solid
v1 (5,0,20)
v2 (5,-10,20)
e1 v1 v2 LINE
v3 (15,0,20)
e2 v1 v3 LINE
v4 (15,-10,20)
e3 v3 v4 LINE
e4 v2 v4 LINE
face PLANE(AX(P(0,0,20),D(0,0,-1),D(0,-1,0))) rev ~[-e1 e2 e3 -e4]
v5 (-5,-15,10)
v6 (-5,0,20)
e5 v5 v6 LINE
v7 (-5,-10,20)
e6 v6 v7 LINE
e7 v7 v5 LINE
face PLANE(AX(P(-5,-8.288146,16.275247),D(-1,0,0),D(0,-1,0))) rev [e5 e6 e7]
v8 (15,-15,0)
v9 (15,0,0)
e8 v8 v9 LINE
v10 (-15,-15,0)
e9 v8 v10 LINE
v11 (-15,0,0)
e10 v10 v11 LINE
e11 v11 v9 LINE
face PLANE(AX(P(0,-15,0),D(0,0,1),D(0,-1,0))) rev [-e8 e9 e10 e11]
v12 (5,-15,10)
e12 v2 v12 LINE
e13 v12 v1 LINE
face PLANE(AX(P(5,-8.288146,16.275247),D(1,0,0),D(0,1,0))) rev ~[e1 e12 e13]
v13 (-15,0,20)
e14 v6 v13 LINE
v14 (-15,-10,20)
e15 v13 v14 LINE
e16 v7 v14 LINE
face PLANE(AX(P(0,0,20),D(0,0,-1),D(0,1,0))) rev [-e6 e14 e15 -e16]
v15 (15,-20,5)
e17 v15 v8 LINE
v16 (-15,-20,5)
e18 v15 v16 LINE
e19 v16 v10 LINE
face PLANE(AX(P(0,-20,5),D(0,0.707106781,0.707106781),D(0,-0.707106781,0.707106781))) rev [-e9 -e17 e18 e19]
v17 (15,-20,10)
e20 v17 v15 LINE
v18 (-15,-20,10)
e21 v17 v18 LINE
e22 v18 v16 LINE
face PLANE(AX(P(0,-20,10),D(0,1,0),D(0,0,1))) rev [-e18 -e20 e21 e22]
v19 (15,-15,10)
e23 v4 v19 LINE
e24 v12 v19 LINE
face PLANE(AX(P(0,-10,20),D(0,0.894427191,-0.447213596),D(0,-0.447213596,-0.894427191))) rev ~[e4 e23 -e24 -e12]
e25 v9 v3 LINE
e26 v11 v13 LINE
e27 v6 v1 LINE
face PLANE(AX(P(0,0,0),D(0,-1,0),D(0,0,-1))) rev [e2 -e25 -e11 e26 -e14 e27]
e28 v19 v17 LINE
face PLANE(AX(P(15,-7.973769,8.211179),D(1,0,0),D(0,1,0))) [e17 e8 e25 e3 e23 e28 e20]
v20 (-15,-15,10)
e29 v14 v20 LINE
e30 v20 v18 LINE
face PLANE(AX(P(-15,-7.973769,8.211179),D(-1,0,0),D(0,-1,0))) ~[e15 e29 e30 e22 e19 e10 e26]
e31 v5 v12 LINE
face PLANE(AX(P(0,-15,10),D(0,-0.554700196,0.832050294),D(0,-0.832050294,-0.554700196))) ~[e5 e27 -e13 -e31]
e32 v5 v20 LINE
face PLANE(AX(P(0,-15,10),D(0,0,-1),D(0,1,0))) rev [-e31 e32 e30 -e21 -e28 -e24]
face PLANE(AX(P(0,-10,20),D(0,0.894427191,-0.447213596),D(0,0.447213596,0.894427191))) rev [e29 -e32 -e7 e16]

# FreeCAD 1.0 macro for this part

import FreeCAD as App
import Part
import Sketcher
from FreeCAD import Vector
Q = App.Units.Quantity


def add_polygon(sketch, points):
    """Adds a closed chain of lines whose ends are joined by coincident constraints."""
    first, n = sketch.GeometryCount, len(points)
    for a, b in zip(points, points[1:] + points[:1]):
        sketch.addGeometry(Part.LineSegment(App.Vector(*a, 0), App.Vector(*b, 0)), False)
    for i in range(n):
        sketch.addConstraint(Sketcher.Constraint("Coincident", first + i, 2, first + (i + 1) % n, 1))

doc = App.newDocument("Part")
body = doc.addObject("PartDesign::Body", "Body")

# Sketch on YZ plane
sketch1 = doc.addObject("Sketcher::SketchObject", "Sketch")
body.addObject(sketch1)
sketch1.AttachmentSupport = (doc.YZ_Plane, [""])
sketch1.MapMode = "FlatFace"
add_polygon(sketch1, [(-15, 0), (0, 0), (0, 20), (-10, 20), (-15, 10), (-20, 10), (-20, 5)])  # lines 0-6
sketch1.addConstraint(Sketcher.Constraint("Horizontal", 0))
sketch1.addConstraint(Sketcher.Constraint("Vertical", 1))
sketch1.addConstraint(Sketcher.Constraint("Horizontal", 2))
sketch1.addConstraint(Sketcher.Constraint("Horizontal", 4))
sketch1.addConstraint(Sketcher.Constraint("Vertical", 5))
sketch1.addConstraint(Sketcher.Constraint("Coincident", 0, 2, -1, 1))
sketch1.addConstraint(Sketcher.Constraint("Vertical", 3, 2, 6, 2))
sketch1.addConstraint(Sketcher.Constraint("Equal", 4, 5))
sketch1.addConstraint(Sketcher.Constraint("DistanceX", 0, 1, 0, 2, 15.0))
sketch1.addConstraint(Sketcher.Constraint("DistanceX", 2, 2, 2, 1, 10.0))
sketch1.addConstraint(Sketcher.Constraint("DistanceX", 4, 2, 4, 1, 5.0))
sketch1.addConstraint(Sketcher.Constraint("DistanceY", 1, 1, 1, 2, 20.0))
sketch1.addConstraint(Sketcher.Constraint("Angle", 6, Q("-45 deg")))
pad1 = doc.addObject("PartDesign::Pad", "Pad")
body.addObject(pad1)
pad1.Profile = sketch1
pad1.Length = 15

# Sketch on YZ plane
sketch2 = doc.addObject("Sketcher::SketchObject", "Sketch001")
body.addObject(sketch2)
sketch2.AttachmentSupport = (doc.YZ_Plane, [""])
sketch2.MapMode = "FlatFace"
add_polygon(sketch2, [(-15, 10), (0, 20), (-10, 20)])  # lines 0-2
sketch2.addConstraint(Sketcher.Constraint("Horizontal", 1))
sketch2.addConstraint(Sketcher.Constraint("PointOnObject", 0, 2, -2))
sketch2.addConstraint(Sketcher.Constraint("DistanceX", 1, 2, 1, 1, 10.0))
sketch2.addConstraint(Sketcher.Constraint("DistanceY", -1, 1, 0, 2, 20.0))
sketch2.addConstraint(Sketcher.Constraint("DistanceX", 2, 2, -1, 1, 15.0))
sketch2.addConstraint(Sketcher.Constraint("DistanceY", -1, 1, 2, 2, 10.0))
pocket1 = doc.addObject("PartDesign::Pocket", "Pocket")
body.addObject(pocket1)
pocket1.Profile = sketch2
pocket1.Length = 5
pocket1.Reversed = True
body2 = doc.addObject("PartDesign::Body", "Body001")
doc.recompute()

body2.BaseFeature = body
doc.recompute()

mirroring = doc.addObject("Part::Mirroring", "Mirroring")
mirroring.Source = body
mirroring.Base = Vector(0, -8.174603, 7.539683)
mirroring.Normal = Vector(-1, 0, 0)
body3 = doc.addObject("PartDesign::Body", "Body002")
body3.BaseFeature = mirroring
boolean = doc.addObject("PartDesign::Boolean", "Boolean")
body2.addObject(boolean)
boolean.Type = "Fuse"
boolean.addObjects([body3])
doc.recompute()
mirroring.Visibility = False

doc.recompute()
